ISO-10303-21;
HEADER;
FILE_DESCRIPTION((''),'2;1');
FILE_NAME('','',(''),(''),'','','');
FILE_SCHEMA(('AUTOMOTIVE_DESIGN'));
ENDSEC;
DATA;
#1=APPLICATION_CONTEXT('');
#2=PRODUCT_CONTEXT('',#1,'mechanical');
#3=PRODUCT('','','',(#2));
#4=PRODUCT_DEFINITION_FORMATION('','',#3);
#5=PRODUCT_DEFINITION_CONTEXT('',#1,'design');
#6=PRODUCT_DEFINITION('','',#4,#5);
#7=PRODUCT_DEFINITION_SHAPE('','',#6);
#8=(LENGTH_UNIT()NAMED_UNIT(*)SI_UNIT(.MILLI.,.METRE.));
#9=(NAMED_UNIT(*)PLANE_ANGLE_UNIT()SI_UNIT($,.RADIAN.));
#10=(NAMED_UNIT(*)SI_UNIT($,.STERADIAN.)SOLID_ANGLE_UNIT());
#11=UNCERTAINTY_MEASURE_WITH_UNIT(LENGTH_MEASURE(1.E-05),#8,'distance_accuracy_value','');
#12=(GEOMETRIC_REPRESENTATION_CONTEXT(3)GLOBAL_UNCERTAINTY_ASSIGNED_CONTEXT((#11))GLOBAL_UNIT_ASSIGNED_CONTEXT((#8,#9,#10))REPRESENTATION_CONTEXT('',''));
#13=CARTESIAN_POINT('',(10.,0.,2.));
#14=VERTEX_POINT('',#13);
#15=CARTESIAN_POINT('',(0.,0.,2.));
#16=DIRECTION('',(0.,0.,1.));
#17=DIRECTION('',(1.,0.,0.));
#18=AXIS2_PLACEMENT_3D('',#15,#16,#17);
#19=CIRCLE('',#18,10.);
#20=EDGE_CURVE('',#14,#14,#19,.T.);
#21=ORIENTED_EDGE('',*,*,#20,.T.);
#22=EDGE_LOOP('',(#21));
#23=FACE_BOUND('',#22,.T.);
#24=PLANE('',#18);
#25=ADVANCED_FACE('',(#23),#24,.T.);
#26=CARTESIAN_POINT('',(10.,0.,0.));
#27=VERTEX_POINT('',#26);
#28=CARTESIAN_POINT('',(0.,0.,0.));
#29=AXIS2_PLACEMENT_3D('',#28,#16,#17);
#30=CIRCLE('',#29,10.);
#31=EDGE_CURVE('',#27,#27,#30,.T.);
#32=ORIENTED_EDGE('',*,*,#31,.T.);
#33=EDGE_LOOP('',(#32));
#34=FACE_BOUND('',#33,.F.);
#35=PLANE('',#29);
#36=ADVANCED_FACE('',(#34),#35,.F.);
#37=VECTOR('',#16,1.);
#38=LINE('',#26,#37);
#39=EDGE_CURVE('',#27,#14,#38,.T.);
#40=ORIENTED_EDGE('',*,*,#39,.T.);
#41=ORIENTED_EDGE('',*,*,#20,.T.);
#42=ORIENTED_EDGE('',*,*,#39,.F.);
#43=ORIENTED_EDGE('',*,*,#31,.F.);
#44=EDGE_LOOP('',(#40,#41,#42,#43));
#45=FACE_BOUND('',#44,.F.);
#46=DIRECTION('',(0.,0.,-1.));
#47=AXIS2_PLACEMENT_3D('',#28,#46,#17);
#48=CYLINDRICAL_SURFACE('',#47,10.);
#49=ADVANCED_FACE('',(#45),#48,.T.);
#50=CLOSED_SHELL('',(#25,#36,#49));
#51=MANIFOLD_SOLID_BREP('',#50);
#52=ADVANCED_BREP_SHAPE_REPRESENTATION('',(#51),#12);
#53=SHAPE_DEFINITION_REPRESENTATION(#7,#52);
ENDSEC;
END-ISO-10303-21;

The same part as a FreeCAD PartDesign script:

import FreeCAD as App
import Part
import Sketcher
Q = App.Units.Quantity

doc = App.newDocument("Part")
body = doc.addObject("PartDesign::Body", "Body")

sketch1 = body.newObject("Sketcher::SketchObject", "Sketch")
sketch1.AttachmentSupport = (doc.getObject("XY_Plane"), [""])
sketch1.MapMode = "FlatFace"
sketch1.addGeometry(Part.Circle(App.Vector(0, 0, 0), App.Vector(0, 0, 1), 10), False)
sketch1.addConstraint(Sketcher.Constraint("Coincident", 0, 3, -1, 1))
sketch1.addConstraint(Sketcher.Constraint("Diameter", 0, Q("20 mm")))
pad1 = body.newObject("PartDesign::Pad", "Pad")
pad1.Profile = sketch1
pad1.Length = 2

doc.recompute()
